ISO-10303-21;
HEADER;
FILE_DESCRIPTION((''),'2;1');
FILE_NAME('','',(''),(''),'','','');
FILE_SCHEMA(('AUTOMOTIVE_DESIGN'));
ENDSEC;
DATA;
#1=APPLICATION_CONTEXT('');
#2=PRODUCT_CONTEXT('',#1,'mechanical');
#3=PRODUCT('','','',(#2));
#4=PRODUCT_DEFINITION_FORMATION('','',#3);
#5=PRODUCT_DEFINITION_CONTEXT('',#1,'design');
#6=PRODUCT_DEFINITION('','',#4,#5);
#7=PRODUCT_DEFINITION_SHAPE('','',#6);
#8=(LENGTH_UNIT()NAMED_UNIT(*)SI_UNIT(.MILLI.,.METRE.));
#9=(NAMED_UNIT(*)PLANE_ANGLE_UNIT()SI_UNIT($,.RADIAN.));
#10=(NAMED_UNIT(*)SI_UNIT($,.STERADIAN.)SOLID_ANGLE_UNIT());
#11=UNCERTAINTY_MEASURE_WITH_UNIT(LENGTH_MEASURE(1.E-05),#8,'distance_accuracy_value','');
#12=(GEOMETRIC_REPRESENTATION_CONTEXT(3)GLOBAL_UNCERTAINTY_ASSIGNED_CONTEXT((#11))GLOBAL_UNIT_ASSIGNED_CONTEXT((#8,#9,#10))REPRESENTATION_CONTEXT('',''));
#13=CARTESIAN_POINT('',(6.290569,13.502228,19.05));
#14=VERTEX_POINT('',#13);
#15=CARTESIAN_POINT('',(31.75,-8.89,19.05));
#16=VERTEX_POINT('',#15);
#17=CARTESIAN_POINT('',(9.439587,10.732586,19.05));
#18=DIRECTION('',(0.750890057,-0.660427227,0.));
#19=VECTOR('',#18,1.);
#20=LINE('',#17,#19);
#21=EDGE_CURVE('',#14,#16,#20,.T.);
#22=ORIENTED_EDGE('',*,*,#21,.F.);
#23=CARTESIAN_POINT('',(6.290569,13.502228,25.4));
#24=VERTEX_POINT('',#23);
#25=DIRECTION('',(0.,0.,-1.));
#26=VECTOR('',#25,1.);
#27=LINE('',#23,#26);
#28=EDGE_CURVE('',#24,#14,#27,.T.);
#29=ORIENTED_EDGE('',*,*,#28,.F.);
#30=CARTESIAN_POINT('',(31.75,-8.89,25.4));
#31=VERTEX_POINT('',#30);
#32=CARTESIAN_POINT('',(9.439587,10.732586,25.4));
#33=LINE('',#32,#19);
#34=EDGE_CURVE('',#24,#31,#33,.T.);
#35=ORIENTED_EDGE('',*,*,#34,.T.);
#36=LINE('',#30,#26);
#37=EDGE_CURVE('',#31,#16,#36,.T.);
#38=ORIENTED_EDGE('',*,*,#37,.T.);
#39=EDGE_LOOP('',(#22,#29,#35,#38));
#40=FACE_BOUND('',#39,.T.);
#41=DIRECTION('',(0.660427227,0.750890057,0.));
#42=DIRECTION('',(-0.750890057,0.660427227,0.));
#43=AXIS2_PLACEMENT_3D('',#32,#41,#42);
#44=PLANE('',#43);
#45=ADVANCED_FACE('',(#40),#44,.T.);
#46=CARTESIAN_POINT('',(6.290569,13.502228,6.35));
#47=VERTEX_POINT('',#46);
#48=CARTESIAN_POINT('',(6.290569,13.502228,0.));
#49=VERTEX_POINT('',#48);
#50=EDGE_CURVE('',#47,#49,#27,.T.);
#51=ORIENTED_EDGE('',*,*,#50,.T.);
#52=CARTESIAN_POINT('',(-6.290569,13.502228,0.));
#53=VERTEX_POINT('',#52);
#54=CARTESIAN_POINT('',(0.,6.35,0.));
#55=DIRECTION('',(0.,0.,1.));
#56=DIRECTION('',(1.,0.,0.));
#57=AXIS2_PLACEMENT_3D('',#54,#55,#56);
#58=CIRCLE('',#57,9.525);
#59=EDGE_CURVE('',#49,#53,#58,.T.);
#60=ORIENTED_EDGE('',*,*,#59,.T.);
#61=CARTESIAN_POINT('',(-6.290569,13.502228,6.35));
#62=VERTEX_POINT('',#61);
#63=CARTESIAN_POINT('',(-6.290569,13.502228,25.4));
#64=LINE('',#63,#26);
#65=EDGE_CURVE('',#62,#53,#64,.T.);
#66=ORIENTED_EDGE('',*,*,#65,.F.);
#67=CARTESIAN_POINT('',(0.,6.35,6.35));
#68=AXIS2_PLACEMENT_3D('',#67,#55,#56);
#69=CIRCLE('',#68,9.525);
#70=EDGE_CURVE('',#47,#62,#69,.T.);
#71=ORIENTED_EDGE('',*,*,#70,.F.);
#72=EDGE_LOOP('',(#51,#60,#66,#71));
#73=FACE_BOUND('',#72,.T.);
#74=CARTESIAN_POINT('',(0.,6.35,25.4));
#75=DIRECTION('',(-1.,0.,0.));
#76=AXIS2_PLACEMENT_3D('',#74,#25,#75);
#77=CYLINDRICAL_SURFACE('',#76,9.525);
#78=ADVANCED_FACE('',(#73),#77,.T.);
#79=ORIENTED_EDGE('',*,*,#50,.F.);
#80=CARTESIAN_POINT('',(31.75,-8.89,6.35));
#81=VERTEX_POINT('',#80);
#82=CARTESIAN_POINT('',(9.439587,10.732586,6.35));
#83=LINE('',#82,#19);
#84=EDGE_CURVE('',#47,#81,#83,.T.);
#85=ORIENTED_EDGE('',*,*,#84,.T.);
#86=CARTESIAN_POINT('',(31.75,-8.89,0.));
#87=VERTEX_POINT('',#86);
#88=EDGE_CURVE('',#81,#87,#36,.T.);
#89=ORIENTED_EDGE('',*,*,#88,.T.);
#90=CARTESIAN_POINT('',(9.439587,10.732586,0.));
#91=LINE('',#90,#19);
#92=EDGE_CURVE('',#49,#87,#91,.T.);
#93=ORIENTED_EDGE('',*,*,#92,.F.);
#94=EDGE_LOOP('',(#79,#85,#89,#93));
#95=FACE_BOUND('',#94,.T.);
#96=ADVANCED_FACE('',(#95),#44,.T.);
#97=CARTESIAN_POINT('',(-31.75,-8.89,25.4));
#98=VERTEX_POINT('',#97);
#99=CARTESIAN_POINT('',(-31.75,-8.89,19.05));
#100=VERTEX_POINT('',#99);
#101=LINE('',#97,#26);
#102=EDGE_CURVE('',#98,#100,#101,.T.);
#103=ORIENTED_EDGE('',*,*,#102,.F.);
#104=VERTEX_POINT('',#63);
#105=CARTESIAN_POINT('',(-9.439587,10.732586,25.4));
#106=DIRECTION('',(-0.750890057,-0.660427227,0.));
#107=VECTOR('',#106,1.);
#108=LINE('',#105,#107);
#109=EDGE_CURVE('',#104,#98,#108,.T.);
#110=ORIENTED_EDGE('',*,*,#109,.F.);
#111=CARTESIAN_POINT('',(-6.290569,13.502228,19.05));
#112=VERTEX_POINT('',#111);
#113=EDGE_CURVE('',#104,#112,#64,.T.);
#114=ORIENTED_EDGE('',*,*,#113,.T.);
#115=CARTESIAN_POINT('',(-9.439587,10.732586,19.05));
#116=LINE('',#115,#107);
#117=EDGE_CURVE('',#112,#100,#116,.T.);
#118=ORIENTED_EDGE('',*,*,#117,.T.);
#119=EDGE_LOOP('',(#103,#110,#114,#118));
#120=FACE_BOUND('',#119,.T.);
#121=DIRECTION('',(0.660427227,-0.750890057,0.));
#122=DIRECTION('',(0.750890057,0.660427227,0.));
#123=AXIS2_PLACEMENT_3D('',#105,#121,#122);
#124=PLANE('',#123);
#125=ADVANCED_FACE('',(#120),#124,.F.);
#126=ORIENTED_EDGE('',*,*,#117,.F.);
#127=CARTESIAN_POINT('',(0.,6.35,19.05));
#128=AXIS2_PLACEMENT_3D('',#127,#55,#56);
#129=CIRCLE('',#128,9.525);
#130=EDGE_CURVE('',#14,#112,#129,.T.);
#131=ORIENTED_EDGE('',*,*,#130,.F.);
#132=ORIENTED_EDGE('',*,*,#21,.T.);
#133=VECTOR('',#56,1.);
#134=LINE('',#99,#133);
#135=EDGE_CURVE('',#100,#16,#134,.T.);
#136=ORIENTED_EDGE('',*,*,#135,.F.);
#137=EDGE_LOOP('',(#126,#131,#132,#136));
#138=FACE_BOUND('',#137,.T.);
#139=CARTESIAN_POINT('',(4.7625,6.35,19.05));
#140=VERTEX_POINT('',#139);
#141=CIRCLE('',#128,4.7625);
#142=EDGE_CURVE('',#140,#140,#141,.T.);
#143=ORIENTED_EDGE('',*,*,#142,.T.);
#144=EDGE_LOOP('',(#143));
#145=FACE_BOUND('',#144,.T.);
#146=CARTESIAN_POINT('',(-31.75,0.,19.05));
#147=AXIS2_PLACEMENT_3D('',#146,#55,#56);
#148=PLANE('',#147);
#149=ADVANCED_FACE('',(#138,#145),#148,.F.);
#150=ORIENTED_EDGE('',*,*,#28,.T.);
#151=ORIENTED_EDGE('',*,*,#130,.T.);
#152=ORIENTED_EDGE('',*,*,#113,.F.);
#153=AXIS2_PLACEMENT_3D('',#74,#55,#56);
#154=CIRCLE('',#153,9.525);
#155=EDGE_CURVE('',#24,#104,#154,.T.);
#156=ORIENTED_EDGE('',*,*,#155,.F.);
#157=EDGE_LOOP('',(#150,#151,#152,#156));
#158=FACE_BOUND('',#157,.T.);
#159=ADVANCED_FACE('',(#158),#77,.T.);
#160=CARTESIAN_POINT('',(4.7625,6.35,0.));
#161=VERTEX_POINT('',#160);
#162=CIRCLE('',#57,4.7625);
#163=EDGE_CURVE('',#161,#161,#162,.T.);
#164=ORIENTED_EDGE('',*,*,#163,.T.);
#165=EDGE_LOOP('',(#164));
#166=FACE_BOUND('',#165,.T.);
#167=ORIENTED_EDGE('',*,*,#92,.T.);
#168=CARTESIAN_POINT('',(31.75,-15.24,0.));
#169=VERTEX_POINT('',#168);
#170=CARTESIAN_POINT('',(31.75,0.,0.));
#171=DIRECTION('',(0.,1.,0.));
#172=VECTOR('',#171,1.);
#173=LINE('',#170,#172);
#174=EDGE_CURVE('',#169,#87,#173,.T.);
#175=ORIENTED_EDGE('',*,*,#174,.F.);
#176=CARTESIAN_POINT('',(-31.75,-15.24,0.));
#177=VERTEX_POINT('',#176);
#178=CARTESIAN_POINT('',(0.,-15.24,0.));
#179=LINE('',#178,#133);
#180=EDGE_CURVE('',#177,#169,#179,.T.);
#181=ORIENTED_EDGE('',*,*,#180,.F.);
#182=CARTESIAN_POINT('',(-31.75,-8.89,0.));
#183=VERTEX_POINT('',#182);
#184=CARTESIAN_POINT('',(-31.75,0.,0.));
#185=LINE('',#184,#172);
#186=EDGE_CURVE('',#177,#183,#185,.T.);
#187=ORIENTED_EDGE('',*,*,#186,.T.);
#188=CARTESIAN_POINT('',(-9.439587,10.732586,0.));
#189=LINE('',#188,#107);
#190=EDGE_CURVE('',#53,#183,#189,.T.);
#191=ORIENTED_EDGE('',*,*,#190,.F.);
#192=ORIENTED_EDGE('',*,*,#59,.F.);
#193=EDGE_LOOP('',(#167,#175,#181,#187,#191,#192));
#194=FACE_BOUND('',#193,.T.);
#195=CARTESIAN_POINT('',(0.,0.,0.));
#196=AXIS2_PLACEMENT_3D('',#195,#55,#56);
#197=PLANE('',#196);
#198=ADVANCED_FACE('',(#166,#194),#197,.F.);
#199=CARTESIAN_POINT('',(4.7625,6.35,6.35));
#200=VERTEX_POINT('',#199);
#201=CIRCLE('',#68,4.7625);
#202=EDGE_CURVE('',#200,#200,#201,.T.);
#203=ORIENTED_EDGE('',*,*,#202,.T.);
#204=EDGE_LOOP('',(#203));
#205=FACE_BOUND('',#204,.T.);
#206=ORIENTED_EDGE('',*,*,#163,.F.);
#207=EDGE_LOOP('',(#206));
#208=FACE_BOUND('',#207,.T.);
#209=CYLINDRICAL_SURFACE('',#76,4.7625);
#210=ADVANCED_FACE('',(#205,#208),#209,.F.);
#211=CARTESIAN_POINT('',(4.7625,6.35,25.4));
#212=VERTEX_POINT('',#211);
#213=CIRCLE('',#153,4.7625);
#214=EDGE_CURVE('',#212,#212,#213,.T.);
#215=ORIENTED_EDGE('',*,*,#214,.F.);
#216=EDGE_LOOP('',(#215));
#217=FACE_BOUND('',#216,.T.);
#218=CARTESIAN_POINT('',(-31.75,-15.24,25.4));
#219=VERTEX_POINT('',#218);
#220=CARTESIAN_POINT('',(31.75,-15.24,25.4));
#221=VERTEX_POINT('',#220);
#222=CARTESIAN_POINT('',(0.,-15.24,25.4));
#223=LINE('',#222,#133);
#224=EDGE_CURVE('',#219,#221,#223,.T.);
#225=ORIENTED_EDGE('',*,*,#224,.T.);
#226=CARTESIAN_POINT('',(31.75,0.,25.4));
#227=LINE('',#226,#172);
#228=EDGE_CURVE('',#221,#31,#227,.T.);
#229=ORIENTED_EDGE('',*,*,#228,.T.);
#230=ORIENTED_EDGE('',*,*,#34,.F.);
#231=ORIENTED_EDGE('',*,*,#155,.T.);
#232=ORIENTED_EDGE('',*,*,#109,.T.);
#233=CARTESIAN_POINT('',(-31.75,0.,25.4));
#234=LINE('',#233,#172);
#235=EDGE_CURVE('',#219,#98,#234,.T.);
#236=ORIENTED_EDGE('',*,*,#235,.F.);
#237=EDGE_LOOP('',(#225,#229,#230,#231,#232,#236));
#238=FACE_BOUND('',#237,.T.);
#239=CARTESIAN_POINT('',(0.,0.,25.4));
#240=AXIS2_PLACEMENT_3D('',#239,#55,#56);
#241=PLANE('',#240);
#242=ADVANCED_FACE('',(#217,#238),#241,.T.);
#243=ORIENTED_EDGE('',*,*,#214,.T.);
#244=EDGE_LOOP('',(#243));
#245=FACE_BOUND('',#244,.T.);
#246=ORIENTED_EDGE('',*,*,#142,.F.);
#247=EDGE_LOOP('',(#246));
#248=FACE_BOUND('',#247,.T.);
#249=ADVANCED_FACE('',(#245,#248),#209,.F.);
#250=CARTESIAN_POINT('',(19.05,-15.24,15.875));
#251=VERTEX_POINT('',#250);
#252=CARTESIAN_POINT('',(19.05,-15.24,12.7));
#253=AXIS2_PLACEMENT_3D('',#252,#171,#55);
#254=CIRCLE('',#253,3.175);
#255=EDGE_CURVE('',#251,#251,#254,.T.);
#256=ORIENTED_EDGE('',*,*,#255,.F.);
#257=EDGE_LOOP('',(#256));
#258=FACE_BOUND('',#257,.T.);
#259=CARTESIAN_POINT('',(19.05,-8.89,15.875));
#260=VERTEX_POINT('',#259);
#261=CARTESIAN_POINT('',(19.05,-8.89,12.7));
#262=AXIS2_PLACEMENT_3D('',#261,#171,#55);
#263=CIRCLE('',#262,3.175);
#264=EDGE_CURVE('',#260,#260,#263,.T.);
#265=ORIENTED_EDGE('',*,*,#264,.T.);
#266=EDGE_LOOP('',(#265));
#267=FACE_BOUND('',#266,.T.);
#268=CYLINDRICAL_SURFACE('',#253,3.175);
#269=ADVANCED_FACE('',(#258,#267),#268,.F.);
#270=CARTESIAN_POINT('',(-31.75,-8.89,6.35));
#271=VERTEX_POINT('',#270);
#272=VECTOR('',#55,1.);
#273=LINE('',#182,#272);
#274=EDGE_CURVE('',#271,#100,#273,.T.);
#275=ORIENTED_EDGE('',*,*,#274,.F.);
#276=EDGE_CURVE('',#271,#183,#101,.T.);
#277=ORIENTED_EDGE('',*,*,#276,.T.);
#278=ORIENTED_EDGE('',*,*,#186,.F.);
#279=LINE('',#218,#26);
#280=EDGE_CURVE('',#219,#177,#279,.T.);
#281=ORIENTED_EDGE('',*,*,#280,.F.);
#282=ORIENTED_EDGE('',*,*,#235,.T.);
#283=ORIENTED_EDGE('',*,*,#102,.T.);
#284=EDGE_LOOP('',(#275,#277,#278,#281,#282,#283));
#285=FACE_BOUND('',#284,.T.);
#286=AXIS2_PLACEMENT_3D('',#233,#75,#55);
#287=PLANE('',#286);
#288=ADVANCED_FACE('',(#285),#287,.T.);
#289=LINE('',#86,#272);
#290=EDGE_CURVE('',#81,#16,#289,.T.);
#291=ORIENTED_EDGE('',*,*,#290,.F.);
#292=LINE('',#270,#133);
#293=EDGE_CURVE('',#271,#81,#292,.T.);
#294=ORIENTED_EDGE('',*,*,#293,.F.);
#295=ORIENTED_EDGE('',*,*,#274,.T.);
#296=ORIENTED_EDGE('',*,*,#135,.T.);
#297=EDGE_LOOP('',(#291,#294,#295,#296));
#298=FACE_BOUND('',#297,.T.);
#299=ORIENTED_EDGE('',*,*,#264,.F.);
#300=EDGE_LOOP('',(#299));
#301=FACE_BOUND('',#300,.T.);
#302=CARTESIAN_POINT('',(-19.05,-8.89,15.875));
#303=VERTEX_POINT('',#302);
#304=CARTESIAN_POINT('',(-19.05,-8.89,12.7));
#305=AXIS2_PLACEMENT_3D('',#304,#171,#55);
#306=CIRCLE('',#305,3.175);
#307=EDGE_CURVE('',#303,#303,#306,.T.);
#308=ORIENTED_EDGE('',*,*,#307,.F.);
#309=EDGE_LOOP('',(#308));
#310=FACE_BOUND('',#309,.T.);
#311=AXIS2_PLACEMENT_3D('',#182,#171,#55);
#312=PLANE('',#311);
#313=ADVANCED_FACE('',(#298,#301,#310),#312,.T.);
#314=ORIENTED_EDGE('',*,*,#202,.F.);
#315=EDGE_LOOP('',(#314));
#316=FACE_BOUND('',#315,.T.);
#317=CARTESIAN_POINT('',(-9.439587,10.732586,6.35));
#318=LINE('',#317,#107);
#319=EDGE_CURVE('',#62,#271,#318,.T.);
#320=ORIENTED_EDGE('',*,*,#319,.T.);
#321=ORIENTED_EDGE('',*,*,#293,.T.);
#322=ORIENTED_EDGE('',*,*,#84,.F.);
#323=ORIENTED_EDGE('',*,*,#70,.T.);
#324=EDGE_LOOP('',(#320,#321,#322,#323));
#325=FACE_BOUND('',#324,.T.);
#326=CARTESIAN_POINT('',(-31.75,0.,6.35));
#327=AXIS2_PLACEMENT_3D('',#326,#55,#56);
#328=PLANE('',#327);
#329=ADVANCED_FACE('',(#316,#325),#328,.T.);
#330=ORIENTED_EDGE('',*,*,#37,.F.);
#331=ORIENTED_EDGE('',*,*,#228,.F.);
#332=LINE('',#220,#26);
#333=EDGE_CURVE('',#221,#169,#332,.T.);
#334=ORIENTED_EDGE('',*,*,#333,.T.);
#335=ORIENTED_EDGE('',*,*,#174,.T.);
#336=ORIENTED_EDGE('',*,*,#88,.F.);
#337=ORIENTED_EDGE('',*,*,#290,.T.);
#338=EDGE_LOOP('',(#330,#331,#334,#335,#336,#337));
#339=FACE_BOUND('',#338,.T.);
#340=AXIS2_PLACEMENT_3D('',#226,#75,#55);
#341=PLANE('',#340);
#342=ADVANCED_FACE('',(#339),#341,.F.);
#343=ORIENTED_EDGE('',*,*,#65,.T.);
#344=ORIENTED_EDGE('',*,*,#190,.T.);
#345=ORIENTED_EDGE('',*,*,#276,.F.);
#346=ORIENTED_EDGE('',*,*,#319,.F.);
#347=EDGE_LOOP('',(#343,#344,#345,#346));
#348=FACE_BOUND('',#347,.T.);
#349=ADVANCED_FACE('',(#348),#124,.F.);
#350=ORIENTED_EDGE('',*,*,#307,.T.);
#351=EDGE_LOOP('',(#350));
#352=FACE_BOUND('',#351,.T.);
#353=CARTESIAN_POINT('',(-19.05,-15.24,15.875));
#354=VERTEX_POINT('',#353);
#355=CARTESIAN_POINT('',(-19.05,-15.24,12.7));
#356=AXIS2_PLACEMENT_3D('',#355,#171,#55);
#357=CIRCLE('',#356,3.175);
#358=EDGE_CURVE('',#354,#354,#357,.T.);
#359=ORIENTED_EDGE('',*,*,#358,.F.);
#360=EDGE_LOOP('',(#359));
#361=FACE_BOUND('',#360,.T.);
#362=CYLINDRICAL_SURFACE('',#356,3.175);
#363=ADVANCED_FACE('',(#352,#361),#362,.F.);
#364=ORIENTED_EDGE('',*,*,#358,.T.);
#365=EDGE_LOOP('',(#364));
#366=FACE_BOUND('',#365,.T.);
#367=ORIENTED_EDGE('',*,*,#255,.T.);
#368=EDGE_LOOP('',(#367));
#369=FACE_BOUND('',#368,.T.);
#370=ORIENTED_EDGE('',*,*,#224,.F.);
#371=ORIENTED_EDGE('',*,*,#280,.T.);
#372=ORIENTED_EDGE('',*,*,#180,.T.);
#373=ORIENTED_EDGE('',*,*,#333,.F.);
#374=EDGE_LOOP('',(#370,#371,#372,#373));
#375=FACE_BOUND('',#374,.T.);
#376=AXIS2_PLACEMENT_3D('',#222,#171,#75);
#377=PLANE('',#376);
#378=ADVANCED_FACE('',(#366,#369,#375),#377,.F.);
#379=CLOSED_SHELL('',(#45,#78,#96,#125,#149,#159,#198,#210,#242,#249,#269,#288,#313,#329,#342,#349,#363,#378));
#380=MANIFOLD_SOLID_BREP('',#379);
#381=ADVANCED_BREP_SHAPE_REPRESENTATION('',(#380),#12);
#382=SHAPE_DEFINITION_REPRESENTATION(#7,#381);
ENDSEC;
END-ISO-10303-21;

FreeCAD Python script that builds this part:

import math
import FreeCAD as App
import Part
import Sketcher
from FreeCAD import Vector
Q = App.Units.Quantity


def add_polygon(sketch, points):
    """Adds a closed chain of lines whose ends are joined by coincident constraints."""
    first, n = sketch.GeometryCount, len(points)
    for a, b in zip(points, points[1:] + points[:1]):
        sketch.addGeometry(Part.LineSegment(App.Vector(*a, 0), App.Vector(*b, 0)), False)
    for i in range(n):
        sketch.addConstraint(Sketcher.Constraint("Coincident", first + i, 2, first + (i + 1) % n, 1))

doc = App.newDocument("Part")
params = doc.addObject("Spreadsheet::Sheet", "Params")
for row, (alias, value) in enumerate([
    ("sketch1_diameter", "0.375 in"),
    ("sketch1_width", "2.5 in"),
    ("sketch1_radius", "0.375 in"),
    ("sketch1_height", "0.25 in"),
    ("pad1_length", "1 in"),
    ("sketch2_height", "0.5 in"),
    ("sketch3_diameter", "0.25 in"),
], start=1):
    params.set(f"A{row}", alias)
    params.set(f"B{row}", "=" + value)
    params.setAlias(f"B{row}", alias)

body = doc.addObject("PartDesign::Body", "Body")

sketch1 = body.newObject("Sketcher::SketchObject", "Sketch")
sketch1.AttachmentSupport = (doc.getObject("XY_Plane"), [""])
sketch1.MapMode = "FlatFace"
sketch1.addGeometry([
    Part.LineSegment(Vector(31.75, -8.89, 0), Vector(6.290569, 13.502228, 0)),
    Part.ArcOfCircle(Part.Circle(Vector(0, 6.35, 0), Vector(0, 0, 1), 9.525), math.radians(48.667536), math.radians(131.332464)),
    Part.LineSegment(Vector(-6.290569, 13.502228, 0), Vector(-31.75, -8.89, 0)),
    Part.LineSegment(Vector(-31.75, -8.89, 0), Vector(-31.75, -15.24, 0)),
    Part.LineSegment(Vector(-31.75, -15.24, 0), Vector(31.75, -15.24, 0)),
    Part.LineSegment(Vector(31.75, -15.24, 0), Vector(31.75, -8.89, 0)),
    Part.Circle(Vector(0, 6.35, 0), Vector(0, 0, 1), 4.7625),
], False)
sketch1.addConstraint([
    Sketcher.Constraint("Tangent", 0, 2, 1, 1),
    Sketcher.Constraint("Tangent", 1, 2, 2, 1),
    Sketcher.Constraint("Coincident", 2, 2, 3, 1),
    Sketcher.Constraint("Coincident", 3, 2, 4, 1),
    Sketcher.Constraint("Coincident", 4, 2, 5, 1),
    Sketcher.Constraint("Coincident", 5, 2, 0, 1),
    Sketcher.Constraint("Vertical", 3),
    Sketcher.Constraint("Horizontal", 4),
    Sketcher.Constraint("Vertical", 5),
    Sketcher.Constraint("Coincident", 6, 3, 1, 3),
    Sketcher.Constraint("Symmetric", 0, 2, 1, 2, -2),
    Sketcher.Constraint("Horizontal", 2, 2, 5, 2),
    Sketcher.Constraint("Diameter", 6, Q("0.375 in")),
    Sketcher.Constraint("DistanceX", 4, 1, 4, 2, Q("2.5 in")),
    Sketcher.Constraint("Radius", 1, Q("0.375 in")),
    Sketcher.Constraint("DistanceY", 3, 2, 3, 1, Q("0.25 in")),
    Sketcher.Constraint("DistanceY", 3, 2, -1, 1, Q("0.6 in")),
    Sketcher.Constraint("DistanceY", 2, 2, 6, 3, Q("0.6 in")),
])
sketch1.setExpression("Constraints[12]", "Params.sketch1_diameter")
sketch1.setExpression("Constraints[13]", "Params.sketch1_width")
sketch1.setExpression("Constraints[14]", "Params.sketch1_radius")
sketch1.setExpression("Constraints[15]", "Params.sketch1_height")
pad1 = body.newObject("PartDesign::Pad", "Pad")
pad1.Profile = sketch1
pad1.setExpression("Length", "Params.pad1_length")

sketch2 = body.newObject("Sketcher::SketchObject", "Sketch001")
sketch2.AttachmentSupport = (doc.getObject("YZ_Plane"), [""])
sketch2.MapMode = "FlatFace"
sketch2.AttachmentOffset = App.Placement(Vector(0, 0, 1.25 * 25.4), App.Rotation())
add_polygon(sketch2, [(-8.89, 19.05), (-8.89, 6.35), (18.382781, 6.35), (18.382781, 19.05)])
sketch2.addConstraint([
    Sketcher.Constraint("Vertical", 0),
    Sketcher.Constraint("Horizontal", 1),
    Sketcher.Constraint("Vertical", 2),
    Sketcher.Constraint("Horizontal", 3),
    Sketcher.Constraint("DistanceY", 0, 2, 0, 1, Q("0.5 in")),
    Sketcher.Constraint("DistanceX", 0, 2, -1, 1, Q("0.35 in")),
    Sketcher.Constraint("DistanceY", -1, 1, 0, 2, Q("0.25 in")),
    Sketcher.Constraint("DistanceX", 1, 1, 1, 2, Q("27.272781 mm")),
])
sketch2.setExpression("Constraints[8]", "Params.sketch2_height")
pocket1 = body.newObject("PartDesign::Pocket", "Pocket")
pocket1.Profile = sketch2
pocket1.Type = "ThroughAll"

sketch3 = body.newObject("Sketcher::SketchObject", "Sketch002")
sketch3.AttachmentSupport = (doc.getObject("XZ_Plane"), [""])
sketch3.MapMode = "FlatFace"
sketch3.AttachmentOffset = App.Placement(Vector(0, 0, 0.35 * 25.4), App.Rotation())
sketch3.addGeometry([
    Part.Circle(Vector(-19.05, 12.7, 0), Vector(0, 0, 1), 3.175),
    Part.Circle(Vector(19.05, 12.7, 0), Vector(0, 0, 1), 3.175),
], False)
sketch3.addConstraint([
    Sketcher.Constraint("Equal", 0, 1),
    Sketcher.Constraint("Symmetric", 0, 3, 1, 3, -2),
    Sketcher.Constraint("Diameter", 0, Q("0.25 in")),
    Sketcher.Constraint("DistanceY", -1, 1, 0, 3, Q("0.5 in")),
    Sketcher.Constraint("DistanceX", 0, 3, 1, 3, Q("1.5 in")),
])
sketch3.setExpression("Constraints[2]", "Params.sketch3_diameter")
pocket2 = body.newObject("PartDesign::Pocket", "Pocket001")
pocket2.Profile = sketch3
pocket2.Type = "ThroughAll"
pocket2.Reversed = True

doc.recompute()
